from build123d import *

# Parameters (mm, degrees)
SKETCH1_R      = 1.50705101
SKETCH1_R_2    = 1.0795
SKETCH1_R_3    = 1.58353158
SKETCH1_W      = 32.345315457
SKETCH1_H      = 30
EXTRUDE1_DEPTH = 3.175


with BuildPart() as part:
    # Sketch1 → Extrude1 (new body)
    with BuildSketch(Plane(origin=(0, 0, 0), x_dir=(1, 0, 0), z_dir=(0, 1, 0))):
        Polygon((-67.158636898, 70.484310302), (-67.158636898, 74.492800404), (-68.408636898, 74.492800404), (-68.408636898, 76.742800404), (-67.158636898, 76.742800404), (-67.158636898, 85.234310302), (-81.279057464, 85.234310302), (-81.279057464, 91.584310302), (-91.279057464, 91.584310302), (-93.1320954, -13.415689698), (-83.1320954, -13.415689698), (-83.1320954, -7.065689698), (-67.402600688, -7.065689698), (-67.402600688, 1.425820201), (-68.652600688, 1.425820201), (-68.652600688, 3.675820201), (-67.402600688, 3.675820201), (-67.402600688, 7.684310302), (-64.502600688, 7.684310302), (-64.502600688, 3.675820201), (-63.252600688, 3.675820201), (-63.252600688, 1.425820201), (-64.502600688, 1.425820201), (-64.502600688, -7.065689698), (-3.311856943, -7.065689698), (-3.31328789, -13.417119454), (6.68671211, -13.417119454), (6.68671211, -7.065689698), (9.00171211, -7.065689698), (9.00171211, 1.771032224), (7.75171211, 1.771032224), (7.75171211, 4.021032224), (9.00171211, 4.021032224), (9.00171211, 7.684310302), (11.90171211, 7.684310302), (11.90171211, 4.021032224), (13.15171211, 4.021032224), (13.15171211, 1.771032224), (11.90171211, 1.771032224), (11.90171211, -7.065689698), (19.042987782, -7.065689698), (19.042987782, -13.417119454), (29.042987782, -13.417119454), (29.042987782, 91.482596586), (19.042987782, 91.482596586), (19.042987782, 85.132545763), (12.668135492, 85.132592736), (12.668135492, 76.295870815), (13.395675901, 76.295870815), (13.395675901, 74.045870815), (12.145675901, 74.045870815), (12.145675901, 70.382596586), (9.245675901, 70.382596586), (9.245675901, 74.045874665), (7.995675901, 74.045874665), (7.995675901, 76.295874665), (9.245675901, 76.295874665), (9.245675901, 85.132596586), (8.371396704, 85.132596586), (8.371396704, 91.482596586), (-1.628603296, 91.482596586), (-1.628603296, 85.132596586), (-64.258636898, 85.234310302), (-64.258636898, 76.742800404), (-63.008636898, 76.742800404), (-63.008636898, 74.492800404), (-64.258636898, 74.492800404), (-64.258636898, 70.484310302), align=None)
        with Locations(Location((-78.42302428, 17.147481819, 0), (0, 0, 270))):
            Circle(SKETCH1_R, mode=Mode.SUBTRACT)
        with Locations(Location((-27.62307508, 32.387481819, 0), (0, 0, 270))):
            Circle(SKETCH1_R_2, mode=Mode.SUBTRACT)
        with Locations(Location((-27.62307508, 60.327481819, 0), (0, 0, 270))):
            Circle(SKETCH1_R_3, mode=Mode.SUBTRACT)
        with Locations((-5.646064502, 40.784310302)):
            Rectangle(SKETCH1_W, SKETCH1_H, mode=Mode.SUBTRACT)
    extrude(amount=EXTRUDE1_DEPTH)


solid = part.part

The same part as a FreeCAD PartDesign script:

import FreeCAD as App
import Part
import Sketcher
from FreeCAD import Vector

doc = App.newDocument("Part")
body = doc.addObject("PartDesign::Body", "Body")

sketch1 = doc.addObject("Sketcher::SketchObject", "Sketch")
body.addObject(sketch1)
sketch1.AttachmentSupport = (doc.XZ_Plane, [""])
sketch1.MapMode = "FlatFace"
sketch1.addGeometry(Part.LineSegment(Vector(-67.2, -70.5, 0), Vector(-67.2, -74.5, 0)), False)
sketch1.addGeometry(Part.LineSegment(Vector(-67.2, -74.5, 0), Vector(-68.4, -74.5, 0)), False)
sketch1.addGeometry(Part.LineSegment(Vector(-68.4, -74.5, 0), Vector(-68.4, -76.7, 0)), False)
sketch1.addGeometry(Part.LineSegment(Vector(-68.4, -76.7, 0), Vector(-67.2, -76.7, 0)), False)
sketch1.addGeometry(Part.LineSegment(Vector(-67.2, -76.7, 0), Vector(-67.2, -85.2, 0)), False)
sketch1.addGeometry(Part.LineSegment(Vector(-67.2, -85.2, 0), Vector(-81.3, -85.2, 0)), False)
sketch1.addGeometry(Part.LineSegment(Vector(-81.3, -85.2, 0), Vector(-81.3, -91.6, 0)), False)
sketch1.addGeometry(Part.LineSegment(Vector(-81.3, -91.6, 0), Vector(-91.3, -91.6, 0)), False)
sketch1.addGeometry(Part.LineSegment(Vector(-91.3, -91.6, 0), Vector(-93.1, 13.4, 0)), False)
sketch1.addGeometry(Part.LineSegment(Vector(-93.1, 13.4, 0), Vector(-83.1, 13.4, 0)), False)
sketch1.addGeometry(Part.LineSegment(Vector(-83.1, 13.4, 0), Vector(-83.1, 7.1, 0)), False)
sketch1.addGeometry(Part.LineSegment(Vector(-83.1, 7.1, 0), Vector(-67.4, 7.1, 0)), False)
sketch1.addGeometry(Part.LineSegment(Vector(-67.4, 7.1, 0), Vector(-67.4, -1.4, 0)), False)
sketch1.addGeometry(Part.LineSegment(Vector(-67.4, -1.4, 0), Vector(-68.7, -1.4, 0)), False)
sketch1.addGeometry(Part.LineSegment(Vector(-68.7, -1.4, 0), Vector(-68.7, -3.7, 0)), False)
sketch1.addGeometry(Part.LineSegment(Vector(-68.7, -3.7, 0), Vector(-67.4, -3.7, 0)), False)
sketch1.addGeometry(Part.LineSegment(Vector(-67.4, -3.7, 0), Vector(-67.4, -7.7, 0)), False)
sketch1.addGeometry(Part.LineSegment(Vector(-67.4, -7.7, 0), Vector(-64.5, -7.7, 0)), False)
sketch1.addGeometry(Part.LineSegment(Vector(-64.5, -7.7, 0), Vector(-64.5, -3.7, 0)), False)
sketch1.addGeometry(Part.LineSegment(Vector(-64.5, -3.7, 0), Vector(-63.3, -3.7, 0)), False)
sketch1.addGeometry(Part.LineSegment(Vector(-63.3, -3.7, 0), Vector(-63.3, -1.4, 0)), False)
sketch1.addGeometry(Part.LineSegment(Vector(-63.3, -1.4, 0), Vector(-64.5, -1.4, 0)), False)
sketch1.addGeometry(Part.LineSegment(Vector(-64.5, -1.4, 0), Vector(-64.5, 7.1, 0)), False)
sketch1.addGeometry(Part.LineSegment(Vector(-64.5, 7.1, 0), Vector(-3.3, 7.1, 0)), False)
sketch1.addGeometry(Part.LineSegment(Vector(-3.3, 7.1, 0), Vector(-3.3, 13.4, 0)), False)
sketch1.addGeometry(Part.LineSegment(Vector(-3.3, 13.4, 0), Vector(6.7, 13.4, 0)), False)
sketch1.addGeometry(Part.LineSegment(Vector(6.7, 13.4, 0), Vector(6.7, 7.1, 0)), False)
sketch1.addGeometry(Part.LineSegment(Vector(6.7, 7.1, 0), Vector(9, 7.1, 0)), False)
sketch1.addGeometry(Part.LineSegment(Vector(9, 7.1, 0), Vector(9, -1.8, 0)), False)
sketch1.addGeometry(Part.LineSegment(Vector(9, -1.8, 0), Vector(7.8, -1.8, 0)), False)
sketch1.addGeometry(Part.LineSegment(Vector(7.8, -1.8, 0), Vector(7.8, -4, 0)), False)
sketch1.addGeometry(Part.LineSegment(Vector(7.8, -4, 0), Vector(9, -4, 0)), False)
sketch1.addGeometry(Part.LineSegment(Vector(9, -4, 0), Vector(9, -7.7, 0)), False)
sketch1.addGeometry(Part.LineSegment(Vector(9, -7.7, 0), Vector(11.9, -7.7, 0)), False)
sketch1.addGeometry(Part.LineSegment(Vector(11.9, -7.7, 0), Vector(11.9, -4, 0)), False)
sketch1.addGeometry(Part.LineSegment(Vector(11.9, -4, 0), Vector(13.2, -4, 0)), False)
sketch1.addGeometry(Part.LineSegment(Vector(13.2, -4, 0), Vector(13.2, -1.8, 0)), False)
sketch1.addGeometry(Part.LineSegment(Vector(13.2, -1.8, 0), Vector(11.9, -1.8, 0)), False)
sketch1.addGeometry(Part.LineSegment(Vector(11.9, -1.8, 0), Vector(11.9, 7.1, 0)), False)
sketch1.addGeometry(Part.LineSegment(Vector(11.9, 7.1, 0), Vector(19, 7.1, 0)), False)
sketch1.addGeometry(Part.LineSegment(Vector(19, 7.1, 0), Vector(19, 13.4, 0)), False)
sketch1.addGeometry(Part.LineSegment(Vector(19, 13.4, 0), Vector(29, 13.4, 0)), False)
sketch1.addGeometry(Part.LineSegment(Vector(29, 13.4, 0), Vector(29, -91.5, 0)), False)
sketch1.addGeometry(Part.LineSegment(Vector(29, -91.5, 0), Vector(19, -91.5, 0)), False)
sketch1.addGeometry(Part.LineSegment(Vector(19, -91.5, 0), Vector(19, -85.1, 0)), False)
sketch1.addGeometry(Part.LineSegment(Vector(19, -85.1, 0), Vector(12.7, -85.1, 0)), False)
sketch1.addGeometry(Part.LineSegment(Vector(12.7, -85.1, 0), Vector(12.7, -76.3, 0)), False)
sketch1.addGeometry(Part.LineSegment(Vector(12.7, -76.3, 0), Vector(13.4, -76.3, 0)), False)
sketch1.addGeometry(Part.LineSegment(Vector(13.4, -76.3, 0), Vector(13.4, -74, 0)), False)
sketch1.addGeometry(Part.LineSegment(Vector(13.4, -74, 0), Vector(12.1, -74, 0)), False)
sketch1.addGeometry(Part.LineSegment(Vector(12.1, -74, 0), Vector(12.1, -70.4, 0)), False)
sketch1.addGeometry(Part.LineSegment(Vector(12.1, -70.4, 0), Vector(9.2, -70.4, 0)), False)
sketch1.addGeometry(Part.LineSegment(Vector(9.2, -70.4, 0), Vector(9.2, -74, 0)), False)
sketch1.addGeometry(Part.LineSegment(Vector(9.2, -74, 0), Vector(8, -74, 0)), False)
sketch1.addGeometry(Part.LineSegment(Vector(8, -74, 0), Vector(8, -76.3, 0)), False)
sketch1.addGeometry(Part.LineSegment(Vector(8, -76.3, 0), Vector(9.2, -76.3, 0)), False)
sketch1.addGeometry(Part.LineSegment(Vector(9.2, -76.3, 0), Vector(9.2, -85.1, 0)), False)
sketch1.addGeometry(Part.LineSegment(Vector(9.2, -85.1, 0), Vector(8.4, -85.1, 0)), False)
sketch1.addGeometry(Part.LineSegment(Vector(8.4, -85.1, 0), Vector(8.4, -91.5, 0)), False)
sketch1.addGeometry(Part.LineSegment(Vector(8.4, -91.5, 0), Vector(-1.6, -91.5, 0)), False)
sketch1.addGeometry(Part.LineSegment(Vector(-1.6, -91.5, 0), Vector(-1.6, -85.1, 0)), False)
sketch1.addGeometry(Part.LineSegment(Vector(-1.6, -85.1, 0), Vector(-64.3, -85.2, 0)), False)
sketch1.addGeometry(Part.LineSegment(Vector(-64.3, -85.2, 0), Vector(-64.3, -76.7, 0)), False)
sketch1.addGeometry(Part.LineSegment(Vector(-64.3, -76.7, 0), Vector(-63, -76.7, 0)), False)
sketch1.addGeometry(Part.LineSegment(Vector(-63, -76.7, 0), Vector(-63, -74.5, 0)), False)
sketch1.addGeometry(Part.LineSegment(Vector(-63, -74.5, 0), Vector(-64.3, -74.5, 0)), False)
sketch1.addGeometry(Part.LineSegment(Vector(-64.3, -74.5, 0), Vector(-64.3, -70.5, 0)), False)
sketch1.addGeometry(Part.LineSegment(Vector(-64.3, -70.5, 0), Vector(-67.2, -70.5, 0)), False)
sketch1.addGeometry(Part.Circle(Vector(-78.4, -17.1, 0), Vector(0, 0, 1), 1.5), False)
sketch1.addGeometry(Part.Circle(Vector(-27.6, -32.4, 0), Vector(0, 0, 1), 1.1), False)
sketch1.addGeometry(Part.LineSegment(Vector(10.5, -25.8, 0), Vector(-21.8, -25.8, 0)), False)
sketch1.addGeometry(Part.LineSegment(Vector(-21.8, -25.8, 0), Vector(-21.8, -55.8, 0)), False)
sketch1.addGeometry(Part.LineSegment(Vector(-21.8, -55.8, 0), Vector(10.5, -55.8, 0)), False)
sketch1.addGeometry(Part.LineSegment(Vector(10.5, -55.8, 0), Vector(10.5, -25.8, 0)), False)
sketch1.addGeometry(Part.Circle(Vector(-27.6, -60.3, 0), Vector(0, 0, 1), 1.6), False)
sketch1.addConstraint(Sketcher.Constraint("Coincident", 0, 2, 1, 1))
sketch1.addConstraint(Sketcher.Constraint("Coincident", 1, 2, 2, 1))
sketch1.addConstraint(Sketcher.Constraint("Coincident", 2, 2, 3, 1))
sketch1.addConstraint(Sketcher.Constraint("Coincident", 3, 2, 4, 1))
sketch1.addConstraint(Sketcher.Constraint("Coincident", 4, 2, 5, 1))
sketch1.addConstraint(Sketcher.Constraint("Coincident", 5, 2, 6, 1))
sketch1.addConstraint(Sketcher.Constraint("Coincident", 6, 2, 7, 1))
sketch1.addConstraint(Sketcher.Constraint("Coincident", 7, 2, 8, 1))
sketch1.addConstraint(Sketcher.Constraint("Coincident", 8, 2, 9, 1))
sketch1.addConstraint(Sketcher.Constraint("Coincident", 9, 2, 10, 1))
sketch1.addConstraint(Sketcher.Constraint("Coincident", 10, 2, 11, 1))
sketch1.addConstraint(Sketcher.Constraint("Coincident", 11, 2, 12, 1))
sketch1.addConstraint(Sketcher.Constraint("Coincident", 12, 2, 13, 1))
sketch1.addConstraint(Sketcher.Constraint("Coincident", 13, 2, 14, 1))
sketch1.addConstraint(Sketcher.Constraint("Coincident", 14, 2, 15, 1))
sketch1.addConstraint(Sketcher.Constraint("Coincident", 15, 2, 16, 1))
sketch1.addConstraint(Sketcher.Constraint("Coincident", 16, 2, 17, 1))
sketch1.addConstraint(Sketcher.Constraint("Coincident", 17, 2, 18, 1))
sketch1.addConstraint(Sketcher.Constraint("Coincident", 18, 2, 19, 1))
sketch1.addConstraint(Sketcher.Constraint("Coincident", 19, 2, 20, 1))
sketch1.addConstraint(Sketcher.Constraint("Coincident", 20, 2, 21, 1))
sketch1.addConstraint(Sketcher.Constraint("Coincident", 21, 2, 22, 1))
sketch1.addConstraint(Sketcher.Constraint("Coincident", 22, 2, 23, 1))
sketch1.addConstraint(Sketcher.Constraint("Coincident", 23, 2, 24, 1))
sketch1.addConstraint(Sketcher.Constraint("Coincident", 24, 2, 25, 1))
sketch1.addConstraint(Sketcher.Constraint("Coincident", 25, 2, 26, 1))
sketch1.addConstraint(Sketcher.Constraint("Coincident", 26, 2, 27, 1))
sketch1.addConstraint(Sketcher.Constraint("Coincident", 27, 2, 28, 1))
sketch1.addConstraint(Sketcher.Constraint("Coincident", 28, 2, 29, 1))
sketch1.addConstraint(Sketcher.Constraint("Coincident", 29, 2, 30, 1))
sketch1.addConstraint(Sketcher.Constraint("Coincident", 30, 2, 31, 1))
sketch1.addConstraint(Sketcher.Constraint("Coincident", 31, 2, 32, 1))
sketch1.addConstraint(Sketcher.Constraint("Coincident", 32, 2, 33, 1))
sketch1.addConstraint(Sketcher.Constraint("Coincident", 33, 2, 34, 1))
sketch1.addConstraint(Sketcher.Constraint("Coincident", 34, 2, 35, 1))
sketch1.addConstraint(Sketcher.Constraint("Coincident", 35, 2, 36, 1))
sketch1.addConstraint(Sketcher.Constraint("Coincident", 36, 2, 37, 1))
sketch1.addConstraint(Sketcher.Constraint("Coincident", 37, 2, 38, 1))
sketch1.addConstraint(Sketcher.Constraint("Coincident", 38, 2, 39, 1))
sketch1.addConstraint(Sketcher.Constraint("Coincident", 39, 2, 40, 1))
sketch1.addConstraint(Sketcher.Constraint("Coincident", 40, 2, 41, 1))
sketch1.addConstraint(Sketcher.Constraint("Coincident", 41, 2, 42, 1))
sketch1.addConstraint(Sketcher.Constraint("Coincident", 42, 2, 43, 1))
sketch1.addConstraint(Sketcher.Constraint("Coincident", 43, 2, 44, 1))
sketch1.addConstraint(Sketcher.Constraint("Coincident", 44, 2, 45, 1))
sketch1.addConstraint(Sketcher.Constraint("Coincident", 45, 2, 46, 1))
sketch1.addConstraint(Sketcher.Constraint("Coincident", 46, 2, 47, 1))
sketch1.addConstraint(Sketcher.Constraint("Coincident", 47, 2, 48, 1))
sketch1.addConstraint(Sketcher.Constraint("Coincident", 48, 2, 49, 1))
sketch1.addConstraint(Sketcher.Constraint("Coincident", 49, 2, 50, 1))
sketch1.addConstraint(Sketcher.Constraint("Coincident", 50, 2, 51, 1))
sketch1.addConstraint(Sketcher.Constraint("Coincident", 51, 2, 52, 1))
sketch1.addConstraint(Sketcher.Constraint("Coincident", 52, 2, 53, 1))
sketch1.addConstraint(Sketcher.Constraint("Coincident", 53, 2, 54, 1))
sketch1.addConstraint(Sketcher.Constraint("Coincident", 54, 2, 55, 1))
sketch1.addConstraint(Sketcher.Constraint("Coincident", 55, 2, 56, 1))
sketch1.addConstraint(Sketcher.Constraint("Coincident", 56, 2, 57, 1))
sketch1.addConstraint(Sketcher.Constraint("Coincident", 57, 2, 58, 1))
sketch1.addConstraint(Sketcher.Constraint("Coincident", 58, 2, 59, 1))
sketch1.addConstraint(Sketcher.Constraint("Coincident", 59, 2, 60, 1))
sketch1.addConstraint(Sketcher.Constraint("Coincident", 60, 2, 61, 1))
sketch1.addConstraint(Sketcher.Constraint("Coincident", 61, 2, 62, 1))
sketch1.addConstraint(Sketcher.Constraint("Coincident", 62, 2, 63, 1))
sketch1.addConstraint(Sketcher.Constraint("Coincident", 63, 2, 64, 1))
sketch1.addConstraint(Sketcher.Constraint("Coincident", 64, 2, 65, 1))
sketch1.addConstraint(Sketcher.Constraint("Coincident", 65, 2, 66, 1))
sketch1.addConstraint(Sketcher.Constraint("Coincident", 66, 2, 67, 1))
sketch1.addConstraint(Sketcher.Constraint("Coincident", 67, 2, 0, 1))
sketch1.addConstraint(Sketcher.Constraint("Coincident", 70, 2, 71, 1))
sketch1.addConstraint(Sketcher.Constraint("Coincident", 71, 2, 72, 1))
sketch1.addConstraint(Sketcher.Constraint("Coincident", 72, 2, 73, 1))
sketch1.addConstraint(Sketcher.Constraint("Coincident", 73, 2, 70, 1))
sketch1.addConstraint(Sketcher.Constraint("Vertical", 0))
sketch1.addConstraint(Sketcher.Constraint("Horizontal", 1))
sketch1.addConstraint(Sketcher.Constraint("Vertical", 2))
sketch1.addConstraint(Sketcher.Constraint("Horizontal", 3))
sketch1.addConstraint(Sketcher.Constraint("Vertical", 4))
sketch1.addConstraint(Sketcher.Constraint("Horizontal", 5))
sketch1.addConstraint(Sketcher.Constraint("Vertical", 6))
sketch1.addConstraint(Sketcher.Constraint("Horizontal", 7))
sketch1.addConstraint(Sketcher.Constraint("Horizontal", 9))
sketch1.addConstraint(Sketcher.Constraint("Vertical", 10))
sketch1.addConstraint(Sketcher.Constraint("Horizontal", 11))
sketch1.addConstraint(Sketcher.Constraint("Vertical", 12))
sketch1.addConstraint(Sketcher.Constraint("Horizontal", 13))
sketch1.addConstraint(Sketcher.Constraint("Vertical", 14))
sketch1.addConstraint(Sketcher.Constraint("Horizontal", 15))
sketch1.addConstraint(Sketcher.Constraint("Vertical", 16))
sketch1.addConstraint(Sketcher.Constraint("Horizontal", 17))
sketch1.addConstraint(Sketcher.Constraint("Vertical", 18))
sketch1.addConstraint(Sketcher.Constraint("Horizontal", 19))
sketch1.addConstraint(Sketcher.Constraint("Vertical", 20))
sketch1.addConstraint(Sketcher.Constraint("Horizontal", 21))
sketch1.addConstraint(Sketcher.Constraint("Vertical", 22))
sketch1.addConstraint(Sketcher.Constraint("Horizontal", 23))
sketch1.addConstraint(Sketcher.Constraint("Horizontal", 25))
sketch1.addConstraint(Sketcher.Constraint("Vertical", 26))
sketch1.addConstraint(Sketcher.Constraint("Horizontal", 27))
sketch1.addConstraint(Sketcher.Constraint("Vertical", 28))
sketch1.addConstraint(Sketcher.Constraint("Horizontal", 29))
sketch1.addConstraint(Sketcher.Constraint("Vertical", 30))
sketch1.addConstraint(Sketcher.Constraint("Horizontal", 31))
sketch1.addConstraint(Sketcher.Constraint("Vertical", 32))
sketch1.addConstraint(Sketcher.Constraint("Horizontal", 33))
sketch1.addConstraint(Sketcher.Constraint("Vertical", 34))
sketch1.addConstraint(Sketcher.Constraint("Horizontal", 35))
sketch1.addConstraint(Sketcher.Constraint("Vertical", 36))
sketch1.addConstraint(Sketcher.Constraint("Horizontal", 37))
sketch1.addConstraint(Sketcher.Constraint("Vertical", 38))
sketch1.addConstraint(Sketcher.Constraint("Horizontal", 39))
sketch1.addConstraint(Sketcher.Constraint("Vertical", 40))
sketch1.addConstraint(Sketcher.Constraint("Horizontal", 41))
sketch1.addConstraint(Sketcher.Constraint("Vertical", 42))
sketch1.addConstraint(Sketcher.Constraint("Horizontal", 43))
sketch1.addConstraint(Sketcher.Constraint("Vertical", 44))
sketch1.addConstraint(Sketcher.Constraint("Vertical", 46))
sketch1.addConstraint(Sketcher.Constraint("Horizontal", 47))
sketch1.addConstraint(Sketcher.Constraint("Vertical", 48))
sketch1.addConstraint(Sketcher.Constraint("Horizontal", 49))
sketch1.addConstraint(Sketcher.Constraint("Vertical", 50))
sketch1.addConstraint(Sketcher.Constraint("Horizontal", 51))
sketch1.addConstraint(Sketcher.Constraint("Vertical", 52))
sketch1.addConstraint(Sketcher.Constraint("Horizontal", 53))
sketch1.addConstraint(Sketcher.Constraint("Vertical", 54))
sketch1.addConstraint(Sketcher.Constraint("Horizontal", 55))
sketch1.addConstraint(Sketcher.Constraint("Vertical", 56))
sketch1.addConstraint(Sketcher.Constraint("Horizontal", 57))
sketch1.addConstraint(Sketcher.Constraint("Vertical", 58))
sketch1.addConstraint(Sketcher.Constraint("Horizontal", 59))
sketch1.addConstraint(Sketcher.Constraint("Vertical", 60))
sketch1.addConstraint(Sketcher.Constraint("Vertical", 62))
sketch1.addConstraint(Sketcher.Constraint("Horizontal", 63))
sketch1.addConstraint(Sketcher.Constraint("Vertical", 64))
sketch1.addConstraint(Sketcher.Constraint("Horizontal", 65))
sketch1.addConstraint(Sketcher.Constraint("Vertical", 66))
sketch1.addConstraint(Sketcher.Constraint("Horizontal", 67))
sketch1.addConstraint(Sketcher.Constraint("Horizontal", 70))
sketch1.addConstraint(Sketcher.Constraint("Vertical", 71))
sketch1.addConstraint(Sketcher.Constraint("Horizontal", 72))
sketch1.addConstraint(Sketcher.Constraint("Vertical", 73))
sketch1.addConstraint(Sketcher.Constraint("Horizontal", 15, 2, 18, 2))
sketch1.addConstraint(Sketcher.Constraint("Horizontal", 13, 2, 20, 2))
sketch1.addConstraint(Sketcher.Constraint("Horizontal", 11, 2, 22, 2))
sketch1.addConstraint(Sketcher.Constraint("Horizontal", 23, 2, 26, 2))
sketch1.addConstraint(Sketcher.Constraint("Horizontal", 17, 2, 32, 2))
sketch1.addConstraint(Sketcher.Constraint("Horizontal", 31, 2, 34, 2))
sketch1.addConstraint(Sketcher.Constraint("Horizontal", 29, 2, 36, 2))
sketch1.addConstraint(Sketcher.Constraint("Horizontal", 27, 2, 38, 2))
sketch1.addConstraint(Sketcher.Constraint("Horizontal", 25, 2, 40, 2))
sketch1.addConstraint(Sketcher.Constraint("Horizontal", 43, 2, 58, 2))
sketch1.addConstraint(Sketcher.Constraint("Horizontal", 57, 2, 60, 2))
sketch1.addConstraint(Sketcher.Constraint("Horizontal", 5, 2, 61, 2))
sketch1.addConstraint(Sketcher.Constraint("Horizontal", 3, 2, 62, 2))
sketch1.addConstraint(Sketcher.Constraint("Horizontal", 1, 2, 64, 2))
sketch1.addConstraint(Sketcher.Constraint("Vertical", 69, 3, 74, 3))
sketch1.addConstraint(Sketcher.Constraint("Vertical", 0, 2, 3, 2))
sketch1.addConstraint(Sketcher.Constraint("Vertical", 12, 2, 15, 2))
sketch1.addConstraint(Sketcher.Constraint("Vertical", 18, 2, 21, 2))
sketch1.addConstraint(Sketcher.Constraint("Vertical", 28, 2, 31, 2))
sketch1.addConstraint(Sketcher.Constraint("Vertical", 34, 2, 37, 2))
sketch1.addConstraint(Sketcher.Constraint("Vertical", 40, 2, 43, 2))
sketch1.addConstraint(Sketcher.Constraint("Vertical", 52, 2, 55, 2))
sketch1.addConstraint(Sketcher.Constraint("Vertical", 62, 2, 65, 2))
sketch1.addConstraint(Sketcher.Constraint("Equal", 7, 9))
sketch1.addConstraint(Sketcher.Constraint("Equal", 3, 13))
sketch1.addConstraint(Sketcher.Constraint("Equal", 15, 19))
sketch1.addConstraint(Sketcher.Constraint("Equal", 9, 25))
sketch1.addConstraint(Sketcher.Constraint("Equal", 21, 29))
sketch1.addConstraint(Sketcher.Constraint("Equal", 17, 33))
sketch1.addConstraint(Sketcher.Constraint("Equal", 31, 35))
sketch1.addConstraint(Sketcher.Constraint("Equal", 25, 41))
sketch1.addConstraint(Sketcher.Constraint("Equal", 37, 49))
sketch1.addConstraint(Sketcher.Constraint("Equal", 33, 51))
sketch1.addConstraint(Sketcher.Constraint("Equal", 49, 53))
sketch1.addConstraint(Sketcher.Constraint("Equal", 43, 59))
sketch1.addConstraint(Sketcher.Constraint("Equal", 55, 63))
sketch1.addConstraint(Sketcher.Constraint("Equal", 51, 67))
sketch1.addConstraint(Sketcher.Constraint("Equal", 6, 10))
sketch1.addConstraint(Sketcher.Constraint("Equal", 4, 12))
sketch1.addConstraint(Sketcher.Constraint("Equal", 2, 14))
sketch1.addConstraint(Sketcher.Constraint("Equal", 0, 16))
sketch1.addConstraint(Sketcher.Constraint("Equal", 20, 30))
sketch1.addConstraint(Sketcher.Constraint("Equal", 38, 46))
sketch1.addConstraint(Sketcher.Constraint("Equal", 36, 48))
sketch1.addConstraint(Sketcher.Constraint("Equal", 34, 52))
sketch1.addConstraint(Sketcher.Constraint("Equal", 48, 54))
sketch1.addConstraint(Sketcher.Constraint("Equal", 46, 56))
sketch1.addConstraint(Sketcher.Constraint("Equal", 10, 58))
sketch1.addConstraint(Sketcher.Constraint("DistanceX", 7, 2, 7, 1, 10.0))
sketch1.addConstraint(Sketcher.Constraint("DistanceY", 71, 2, 71, 1, 30.0))
sketch1.addConstraint(Sketcher.Constraint("Diameter", 69, 2.159))
sketch1.addConstraint(Sketcher.Constraint("DistanceX", 17, 1, 17, 2, 2.9))
sketch1.addConstraint(Sketcher.Constraint("DistanceX", 1, 2, 1, 1, 1.25))
sketch1.addConstraint(Sketcher.Constraint("DistanceY", 2, 2, 2, 1, 2.25))
sketch1.addConstraint(Sketcher.Constraint("DistanceY", 6, 2, 6, 1, 6.35))
sketch1.addConstraint(Sketcher.Constraint("DistanceX", 27, 1, 27, 2, 2.315))
sketch1.addConstraint(Sketcher.Constraint("Diameter", 68, 3.014102))
sketch1.addConstraint(Sketcher.Constraint("Diameter", 74, 3.167063))
sketch1.addConstraint(Sketcher.Constraint("DistanceX", 5, 2, 5, 1, 14.120421))
sketch1.addConstraint(Sketcher.Constraint("DistanceX", 47, 1, 47, 2, 0.72754))
sketch1.addConstraint(Sketcher.Constraint("DistanceX", 57, 2, 57, 1, 0.874279))
sketch1.addConstraint(Sketcher.Constraint("DistanceY", 0, 2, 0, 1, 4.00849))
sketch1.addConstraint(Sketcher.Constraint("DistanceY", 4, 2, 4, 1, 8.49151))
sketch1.addConstraint(Sketcher.Constraint("DistanceY", 26, 2, 26, 1, 6.35143))
sketch1.addConstraint(Sketcher.Constraint("DistanceY", 28, 2, 28, 1, 8.836722))
sketch1.addConstraint(Sketcher.Constraint("DistanceY", 44, 1, 44, 2, 6.350051))
sketch1.addConstraint(Sketcher.Constraint("DistanceY", 0, 2, -1, 1, 74.4928))
sketch1.addConstraint(Sketcher.Constraint("DistanceX", 11, 2, -1, 1, 67.402601))
sketch1.addConstraint(Sketcher.Constraint("Distance", 8, 105.01635))
sketch1.addConstraint(Sketcher.Constraint("DistanceX", 11, 1, 11, 2, 15.729495))
sketch1.addConstraint(Sketcher.Constraint("DistanceX", 23, 1, 23, 2, 61.190744))
sketch1.addConstraint(Sketcher.Constraint("DistanceX", 39, 1, 39, 2, 7.141276))
sketch1.addConstraint(Sketcher.Constraint("DistanceX", 70, 2, 70, 1, 32.345315))
sketch1.addConstraint(Sketcher.Constraint("DistanceY", 42, 2, 42, 1, 104.899716))
sketch1.addConstraint(Sketcher.Constraint("DistanceY", 50, 1, 50, 2, 3.663274))
sketch1.addConstraint(Sketcher.Constraint("DistanceY", 68, 3, -1, 1, 17.147482))
sketch1.addConstraint(Sketcher.Constraint("DistanceY", 69, 3, -1, 1, 32.387482))
sketch1.addConstraint(Sketcher.Constraint("DistanceY", 74, 3, -1, 1, 60.327482))
sketch1.addConstraint(Sketcher.Constraint("DistanceY", -1, 1, 8, 2, 13.41569))
sketch1.addConstraint(Sketcher.Constraint("DistanceY", 70, 2, -1, 1, 25.78431))
sketch1.addConstraint(Sketcher.Constraint("Distance", 45, 6.374852))
sketch1.addConstraint(Sketcher.Constraint("Distance", 61, 62.630116))
sketch1.addConstraint(Sketcher.Constraint("DistanceX", 68, 3, -1, 1, 78.423024))
sketch1.addConstraint(Sketcher.Constraint("DistanceX", 69, 3, -1, 1, 27.623075))
sketch1.addConstraint(Sketcher.Constraint("DistanceX", 70, 2, -1, 1, 21.818722))
pad1 = doc.addObject("PartDesign::Pad", "Pad")
body.addObject(pad1)
pad1.Profile = sketch1
pad1.Length = 3.175
pad1.Reversed = True

doc.recompute()
